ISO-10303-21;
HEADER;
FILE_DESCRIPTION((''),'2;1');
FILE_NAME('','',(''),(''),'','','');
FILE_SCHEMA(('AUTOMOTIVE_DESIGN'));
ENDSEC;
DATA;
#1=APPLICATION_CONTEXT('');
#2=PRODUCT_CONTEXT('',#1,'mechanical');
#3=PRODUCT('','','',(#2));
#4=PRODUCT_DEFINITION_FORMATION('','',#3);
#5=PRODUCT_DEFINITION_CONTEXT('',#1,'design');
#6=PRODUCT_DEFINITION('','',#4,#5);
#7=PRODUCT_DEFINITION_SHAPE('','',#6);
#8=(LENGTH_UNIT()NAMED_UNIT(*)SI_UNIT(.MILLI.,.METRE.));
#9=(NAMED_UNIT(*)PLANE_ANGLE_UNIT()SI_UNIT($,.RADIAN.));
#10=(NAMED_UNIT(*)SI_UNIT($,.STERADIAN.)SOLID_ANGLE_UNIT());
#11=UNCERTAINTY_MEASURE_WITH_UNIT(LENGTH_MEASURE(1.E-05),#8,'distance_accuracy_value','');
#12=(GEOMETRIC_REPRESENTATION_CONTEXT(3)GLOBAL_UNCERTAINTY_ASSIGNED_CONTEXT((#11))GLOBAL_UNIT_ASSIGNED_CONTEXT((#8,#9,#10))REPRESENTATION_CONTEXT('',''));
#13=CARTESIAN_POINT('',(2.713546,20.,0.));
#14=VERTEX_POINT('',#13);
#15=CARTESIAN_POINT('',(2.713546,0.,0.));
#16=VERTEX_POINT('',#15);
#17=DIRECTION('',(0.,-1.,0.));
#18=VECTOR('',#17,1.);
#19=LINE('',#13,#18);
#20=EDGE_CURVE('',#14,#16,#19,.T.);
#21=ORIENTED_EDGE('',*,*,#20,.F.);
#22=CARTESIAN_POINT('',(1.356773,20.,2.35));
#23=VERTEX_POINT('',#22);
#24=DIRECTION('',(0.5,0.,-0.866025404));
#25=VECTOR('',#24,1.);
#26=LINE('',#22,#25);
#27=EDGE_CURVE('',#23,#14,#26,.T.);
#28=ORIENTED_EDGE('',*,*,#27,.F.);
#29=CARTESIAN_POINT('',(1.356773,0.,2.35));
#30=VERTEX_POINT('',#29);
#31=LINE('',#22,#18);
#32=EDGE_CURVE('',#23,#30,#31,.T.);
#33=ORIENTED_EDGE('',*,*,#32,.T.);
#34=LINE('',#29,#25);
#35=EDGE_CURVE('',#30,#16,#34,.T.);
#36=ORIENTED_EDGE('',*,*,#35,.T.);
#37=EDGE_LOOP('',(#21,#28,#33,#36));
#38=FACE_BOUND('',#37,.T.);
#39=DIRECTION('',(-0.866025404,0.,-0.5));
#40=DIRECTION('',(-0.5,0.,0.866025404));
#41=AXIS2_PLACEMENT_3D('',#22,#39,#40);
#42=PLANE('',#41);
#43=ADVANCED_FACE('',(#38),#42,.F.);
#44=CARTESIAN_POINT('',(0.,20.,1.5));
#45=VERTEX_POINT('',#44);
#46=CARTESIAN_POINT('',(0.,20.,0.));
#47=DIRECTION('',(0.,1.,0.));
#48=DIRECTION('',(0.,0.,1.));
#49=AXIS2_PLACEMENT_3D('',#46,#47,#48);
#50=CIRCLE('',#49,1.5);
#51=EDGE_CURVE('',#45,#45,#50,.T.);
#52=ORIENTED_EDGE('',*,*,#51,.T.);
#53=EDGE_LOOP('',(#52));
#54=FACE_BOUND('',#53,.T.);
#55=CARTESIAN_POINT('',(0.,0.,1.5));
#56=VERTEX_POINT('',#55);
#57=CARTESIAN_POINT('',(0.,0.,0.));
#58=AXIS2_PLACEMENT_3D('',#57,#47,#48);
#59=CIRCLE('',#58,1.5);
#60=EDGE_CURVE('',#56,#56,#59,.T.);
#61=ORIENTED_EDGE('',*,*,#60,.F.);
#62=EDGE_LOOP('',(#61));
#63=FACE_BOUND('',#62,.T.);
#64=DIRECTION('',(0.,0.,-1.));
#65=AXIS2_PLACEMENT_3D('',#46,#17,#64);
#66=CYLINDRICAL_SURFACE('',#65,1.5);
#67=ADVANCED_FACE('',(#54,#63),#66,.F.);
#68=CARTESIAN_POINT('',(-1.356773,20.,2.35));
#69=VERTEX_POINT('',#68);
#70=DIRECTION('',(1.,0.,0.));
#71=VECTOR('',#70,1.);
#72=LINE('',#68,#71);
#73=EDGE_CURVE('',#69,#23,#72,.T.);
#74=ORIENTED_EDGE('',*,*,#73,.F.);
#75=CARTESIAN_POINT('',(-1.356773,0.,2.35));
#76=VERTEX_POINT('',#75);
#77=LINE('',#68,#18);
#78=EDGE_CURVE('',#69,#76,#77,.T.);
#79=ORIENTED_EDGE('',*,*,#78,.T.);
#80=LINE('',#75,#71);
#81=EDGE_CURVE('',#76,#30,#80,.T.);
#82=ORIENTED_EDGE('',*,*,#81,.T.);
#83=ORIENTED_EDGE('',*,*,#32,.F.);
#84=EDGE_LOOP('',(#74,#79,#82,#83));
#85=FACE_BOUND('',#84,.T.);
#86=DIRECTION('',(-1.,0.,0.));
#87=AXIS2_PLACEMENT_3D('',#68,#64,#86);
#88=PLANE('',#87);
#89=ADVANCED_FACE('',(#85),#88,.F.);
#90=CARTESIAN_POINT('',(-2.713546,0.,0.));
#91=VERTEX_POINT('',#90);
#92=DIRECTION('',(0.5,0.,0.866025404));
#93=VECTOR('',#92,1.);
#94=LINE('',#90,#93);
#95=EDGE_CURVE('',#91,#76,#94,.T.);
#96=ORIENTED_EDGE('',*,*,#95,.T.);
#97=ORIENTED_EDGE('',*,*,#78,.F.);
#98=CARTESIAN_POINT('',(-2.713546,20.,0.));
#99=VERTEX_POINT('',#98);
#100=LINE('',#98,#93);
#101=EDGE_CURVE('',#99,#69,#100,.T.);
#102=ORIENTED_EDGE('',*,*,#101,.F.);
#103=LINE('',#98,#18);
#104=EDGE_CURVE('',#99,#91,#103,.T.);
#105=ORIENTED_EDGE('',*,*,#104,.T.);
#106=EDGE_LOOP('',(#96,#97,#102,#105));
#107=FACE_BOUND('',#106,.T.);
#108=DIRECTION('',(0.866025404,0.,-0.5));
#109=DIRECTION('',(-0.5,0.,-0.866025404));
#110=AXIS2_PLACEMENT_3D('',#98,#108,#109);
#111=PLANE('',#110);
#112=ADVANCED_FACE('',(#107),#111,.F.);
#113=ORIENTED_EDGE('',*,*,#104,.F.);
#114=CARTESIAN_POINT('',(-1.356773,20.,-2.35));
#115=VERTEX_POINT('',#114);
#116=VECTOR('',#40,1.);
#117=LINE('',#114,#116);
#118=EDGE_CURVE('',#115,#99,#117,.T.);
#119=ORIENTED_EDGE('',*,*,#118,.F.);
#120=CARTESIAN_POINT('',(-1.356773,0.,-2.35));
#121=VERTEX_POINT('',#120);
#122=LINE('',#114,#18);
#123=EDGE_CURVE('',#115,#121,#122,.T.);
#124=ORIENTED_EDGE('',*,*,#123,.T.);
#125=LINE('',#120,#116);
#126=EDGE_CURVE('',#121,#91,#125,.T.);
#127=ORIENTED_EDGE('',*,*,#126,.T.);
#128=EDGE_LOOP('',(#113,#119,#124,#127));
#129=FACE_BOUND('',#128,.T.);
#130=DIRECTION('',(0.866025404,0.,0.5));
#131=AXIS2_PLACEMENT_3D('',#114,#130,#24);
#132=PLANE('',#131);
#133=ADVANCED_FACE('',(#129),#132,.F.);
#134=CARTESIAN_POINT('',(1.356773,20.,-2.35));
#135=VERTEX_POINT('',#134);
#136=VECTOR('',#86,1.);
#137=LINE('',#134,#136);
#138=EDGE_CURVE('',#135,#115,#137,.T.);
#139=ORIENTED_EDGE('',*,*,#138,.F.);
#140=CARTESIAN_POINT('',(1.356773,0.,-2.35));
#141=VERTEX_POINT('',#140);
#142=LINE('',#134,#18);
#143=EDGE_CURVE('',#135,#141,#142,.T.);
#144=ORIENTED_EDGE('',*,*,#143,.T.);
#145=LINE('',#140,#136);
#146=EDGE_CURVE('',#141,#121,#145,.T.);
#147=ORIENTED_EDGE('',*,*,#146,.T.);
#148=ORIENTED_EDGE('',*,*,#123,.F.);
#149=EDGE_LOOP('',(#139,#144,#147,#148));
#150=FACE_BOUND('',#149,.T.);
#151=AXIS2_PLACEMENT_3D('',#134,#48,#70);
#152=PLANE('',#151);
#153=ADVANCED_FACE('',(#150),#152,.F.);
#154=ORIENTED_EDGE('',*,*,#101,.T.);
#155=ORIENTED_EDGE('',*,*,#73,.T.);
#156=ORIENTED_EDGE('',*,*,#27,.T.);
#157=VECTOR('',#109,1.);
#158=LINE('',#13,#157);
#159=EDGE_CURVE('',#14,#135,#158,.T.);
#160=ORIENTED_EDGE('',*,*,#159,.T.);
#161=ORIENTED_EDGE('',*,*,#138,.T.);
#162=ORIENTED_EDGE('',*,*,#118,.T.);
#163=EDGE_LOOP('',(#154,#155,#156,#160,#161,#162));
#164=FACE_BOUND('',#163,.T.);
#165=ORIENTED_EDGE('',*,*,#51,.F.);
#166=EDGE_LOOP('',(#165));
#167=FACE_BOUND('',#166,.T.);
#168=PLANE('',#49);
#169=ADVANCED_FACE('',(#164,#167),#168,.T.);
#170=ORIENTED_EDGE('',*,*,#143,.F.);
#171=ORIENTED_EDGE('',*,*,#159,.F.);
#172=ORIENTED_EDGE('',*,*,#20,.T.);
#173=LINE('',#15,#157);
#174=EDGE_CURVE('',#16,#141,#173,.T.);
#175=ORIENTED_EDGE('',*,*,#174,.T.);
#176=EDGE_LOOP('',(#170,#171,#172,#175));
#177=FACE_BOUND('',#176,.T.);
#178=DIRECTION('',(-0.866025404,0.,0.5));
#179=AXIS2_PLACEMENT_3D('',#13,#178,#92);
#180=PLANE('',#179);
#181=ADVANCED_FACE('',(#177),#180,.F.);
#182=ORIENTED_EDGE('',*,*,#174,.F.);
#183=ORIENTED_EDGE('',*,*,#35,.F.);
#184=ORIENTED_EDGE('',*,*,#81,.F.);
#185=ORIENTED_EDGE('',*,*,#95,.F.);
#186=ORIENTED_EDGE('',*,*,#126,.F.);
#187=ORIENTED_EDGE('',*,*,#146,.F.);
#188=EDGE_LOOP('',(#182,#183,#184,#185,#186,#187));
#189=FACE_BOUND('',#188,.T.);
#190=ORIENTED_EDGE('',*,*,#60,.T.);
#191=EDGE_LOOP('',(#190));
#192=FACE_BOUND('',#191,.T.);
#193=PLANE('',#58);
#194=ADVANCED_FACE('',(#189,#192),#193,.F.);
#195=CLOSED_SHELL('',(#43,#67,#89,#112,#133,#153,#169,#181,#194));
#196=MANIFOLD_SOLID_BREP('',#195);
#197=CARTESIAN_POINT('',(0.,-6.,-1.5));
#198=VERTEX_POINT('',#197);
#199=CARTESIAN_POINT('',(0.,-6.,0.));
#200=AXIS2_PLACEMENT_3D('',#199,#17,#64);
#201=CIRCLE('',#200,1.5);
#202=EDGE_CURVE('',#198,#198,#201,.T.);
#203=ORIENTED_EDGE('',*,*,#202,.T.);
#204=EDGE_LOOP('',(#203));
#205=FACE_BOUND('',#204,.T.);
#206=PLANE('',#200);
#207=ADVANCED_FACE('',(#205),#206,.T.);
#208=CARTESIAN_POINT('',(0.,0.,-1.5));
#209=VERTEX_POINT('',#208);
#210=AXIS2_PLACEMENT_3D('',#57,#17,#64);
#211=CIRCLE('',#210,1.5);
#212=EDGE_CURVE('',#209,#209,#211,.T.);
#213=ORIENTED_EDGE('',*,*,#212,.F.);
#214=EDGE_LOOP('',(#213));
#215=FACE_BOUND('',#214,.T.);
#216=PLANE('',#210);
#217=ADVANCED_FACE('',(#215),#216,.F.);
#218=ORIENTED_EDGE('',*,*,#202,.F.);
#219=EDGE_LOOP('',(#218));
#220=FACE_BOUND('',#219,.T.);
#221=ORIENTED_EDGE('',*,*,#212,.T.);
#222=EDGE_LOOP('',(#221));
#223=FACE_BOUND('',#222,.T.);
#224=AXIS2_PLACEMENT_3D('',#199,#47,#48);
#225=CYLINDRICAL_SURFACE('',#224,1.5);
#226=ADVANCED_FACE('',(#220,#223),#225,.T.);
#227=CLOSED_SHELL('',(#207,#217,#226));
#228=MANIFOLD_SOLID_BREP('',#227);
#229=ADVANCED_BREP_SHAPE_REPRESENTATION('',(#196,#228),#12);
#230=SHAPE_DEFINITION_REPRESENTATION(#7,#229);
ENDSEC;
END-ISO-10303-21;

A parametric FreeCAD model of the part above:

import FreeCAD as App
import Part
import Sketcher
from FreeCAD import Vector
Q = App.Units.Quantity

doc = App.newDocument("Part")
params = doc.addObject("Spreadsheet::Sheet", "Params")
for row, (alias, value) in enumerate([
    ("sketch1_diameter", "3 mm"),
    ("pad1_length", "20 mm"),
    ("sketch2_diameter", "3 mm"),
    ("pad2_length", "6 mm"),
], start=1):
    params.set(f"A{row}", alias)
    params.set(f"B{row}", "=" + value)
    params.setAlias(f"B{row}", alias)

body = doc.addObject("PartDesign::Body", "Body")

# Sketch on XZ plane
sketch1 = doc.addObject("Sketcher::SketchObject", "Sketch")
body.addObject(sketch1)
sketch1.AttachmentSupport = (doc.XZ_Plane, [""])
sketch1.MapMode = "FlatFace"
sketch1.addGeometry(Part.LineSegment(Vector(2.7, 0, 0), Vector(1.4, -2.4, 0)), False)
sketch1.addGeometry(Part.LineSegment(Vector(1.4, -2.4, 0), Vector(-1.4, -2.4, 0)), False)
sketch1.addGeometry(Part.LineSegment(Vector(-1.4, -2.4, 0), Vector(-2.7, 0, 0)), False)
sketch1.addGeometry(Part.LineSegment(Vector(-2.7, 0, 0), Vector(-1.4, 2.4, 0)), False)
sketch1.addGeometry(Part.LineSegment(Vector(-1.4, 2.4, 0), Vector(1.4, 2.4, 0)), False)
sketch1.addGeometry(Part.LineSegment(Vector(1.4, 2.4, 0), Vector(2.7, 0, 0)), False)
sketch1.addGeometry(Part.Circle(Vector(0, 0, 0), Vector(0, 0, 1), 1.5), False)
sketch1.addConstraint(Sketcher.Constraint("Coincident", 0, 2, 1, 1))
sketch1.addConstraint(Sketcher.Constraint("Coincident", 1, 2, 2, 1))
sketch1.addConstraint(Sketcher.Constraint("Coincident", 2, 2, 3, 1))
sketch1.addConstraint(Sketcher.Constraint("Coincident", 3, 2, 4, 1))
sketch1.addConstraint(Sketcher.Constraint("Coincident", 4, 2, 5, 1))
sketch1.addConstraint(Sketcher.Constraint("Coincident", 5, 2, 0, 1))
sketch1.addConstraint(Sketcher.Constraint("Horizontal", 1))
sketch1.addConstraint(Sketcher.Constraint("Horizontal", 4))
sketch1.addConstraint(Sketcher.Constraint("Coincident", 6, 3, -1, 1))
sketch1.addConstraint(Sketcher.Constraint("Symmetric", 0, 2, 3, 2, -1, 1))
sketch1.addConstraint(Sketcher.Constraint("Symmetric", 2, 2, 5, 2, -1, 1))
sketch1.addConstraint(Sketcher.Constraint("PointOnObject", 2, 2, -1))
sketch1.addConstraint(Sketcher.Constraint("Parallel", 2, 5))
sketch1.addConstraint(Sketcher.Constraint("Vertical", 1, 2, 3, 2))
sketch1.addConstraint(Sketcher.Constraint("Diameter", 6, 3.0))
sketch1.addConstraint(Sketcher.Constraint("Angle", 0, Q("-120 deg")))
sketch1.addConstraint(Sketcher.Constraint("DistanceY", 1, 2, 3, 2, 4.7))
sketch1.addConstraint(Sketcher.Constraint("DistanceX", 1, 2, 1, 1, 2.713546))
sketch1.setExpression("Constraints[14]", "Params.sketch1_diameter")
pad1 = doc.addObject("PartDesign::Pad", "Pad")
body.addObject(pad1)
pad1.Profile = sketch1
pad1.setExpression("Length", "Params.pad1_length")
pad1.Reversed = True
body2 = doc.addObject("PartDesign::Body", "Body001")

# Sketch on XZ plane
sketch2 = doc.addObject("Sketcher::SketchObject", "Sketch001")
body2.addObject(sketch2)
sketch2.AttachmentSupport = (doc.getObject("XZ_Plane001"), [""])
sketch2.MapMode = "FlatFace"
sketch2.addGeometry(Part.Circle(Vector(0, 0, 0), Vector(0, 0, 1), 1.5), False)
sketch2.addConstraint(Sketcher.Constraint("Coincident", 0, 3, -1, 1))
sketch2.addConstraint(Sketcher.Constraint("Diameter", 0, 3.0))
sketch2.setExpression("Constraints[1]", "Params.sketch2_diameter")
pad2 = doc.addObject("PartDesign::Pad", "Pad001")
body2.addObject(pad2)
pad2.Profile = sketch2
pad2.setExpression("Length", "Params.pad2_length")

doc.recompute()
